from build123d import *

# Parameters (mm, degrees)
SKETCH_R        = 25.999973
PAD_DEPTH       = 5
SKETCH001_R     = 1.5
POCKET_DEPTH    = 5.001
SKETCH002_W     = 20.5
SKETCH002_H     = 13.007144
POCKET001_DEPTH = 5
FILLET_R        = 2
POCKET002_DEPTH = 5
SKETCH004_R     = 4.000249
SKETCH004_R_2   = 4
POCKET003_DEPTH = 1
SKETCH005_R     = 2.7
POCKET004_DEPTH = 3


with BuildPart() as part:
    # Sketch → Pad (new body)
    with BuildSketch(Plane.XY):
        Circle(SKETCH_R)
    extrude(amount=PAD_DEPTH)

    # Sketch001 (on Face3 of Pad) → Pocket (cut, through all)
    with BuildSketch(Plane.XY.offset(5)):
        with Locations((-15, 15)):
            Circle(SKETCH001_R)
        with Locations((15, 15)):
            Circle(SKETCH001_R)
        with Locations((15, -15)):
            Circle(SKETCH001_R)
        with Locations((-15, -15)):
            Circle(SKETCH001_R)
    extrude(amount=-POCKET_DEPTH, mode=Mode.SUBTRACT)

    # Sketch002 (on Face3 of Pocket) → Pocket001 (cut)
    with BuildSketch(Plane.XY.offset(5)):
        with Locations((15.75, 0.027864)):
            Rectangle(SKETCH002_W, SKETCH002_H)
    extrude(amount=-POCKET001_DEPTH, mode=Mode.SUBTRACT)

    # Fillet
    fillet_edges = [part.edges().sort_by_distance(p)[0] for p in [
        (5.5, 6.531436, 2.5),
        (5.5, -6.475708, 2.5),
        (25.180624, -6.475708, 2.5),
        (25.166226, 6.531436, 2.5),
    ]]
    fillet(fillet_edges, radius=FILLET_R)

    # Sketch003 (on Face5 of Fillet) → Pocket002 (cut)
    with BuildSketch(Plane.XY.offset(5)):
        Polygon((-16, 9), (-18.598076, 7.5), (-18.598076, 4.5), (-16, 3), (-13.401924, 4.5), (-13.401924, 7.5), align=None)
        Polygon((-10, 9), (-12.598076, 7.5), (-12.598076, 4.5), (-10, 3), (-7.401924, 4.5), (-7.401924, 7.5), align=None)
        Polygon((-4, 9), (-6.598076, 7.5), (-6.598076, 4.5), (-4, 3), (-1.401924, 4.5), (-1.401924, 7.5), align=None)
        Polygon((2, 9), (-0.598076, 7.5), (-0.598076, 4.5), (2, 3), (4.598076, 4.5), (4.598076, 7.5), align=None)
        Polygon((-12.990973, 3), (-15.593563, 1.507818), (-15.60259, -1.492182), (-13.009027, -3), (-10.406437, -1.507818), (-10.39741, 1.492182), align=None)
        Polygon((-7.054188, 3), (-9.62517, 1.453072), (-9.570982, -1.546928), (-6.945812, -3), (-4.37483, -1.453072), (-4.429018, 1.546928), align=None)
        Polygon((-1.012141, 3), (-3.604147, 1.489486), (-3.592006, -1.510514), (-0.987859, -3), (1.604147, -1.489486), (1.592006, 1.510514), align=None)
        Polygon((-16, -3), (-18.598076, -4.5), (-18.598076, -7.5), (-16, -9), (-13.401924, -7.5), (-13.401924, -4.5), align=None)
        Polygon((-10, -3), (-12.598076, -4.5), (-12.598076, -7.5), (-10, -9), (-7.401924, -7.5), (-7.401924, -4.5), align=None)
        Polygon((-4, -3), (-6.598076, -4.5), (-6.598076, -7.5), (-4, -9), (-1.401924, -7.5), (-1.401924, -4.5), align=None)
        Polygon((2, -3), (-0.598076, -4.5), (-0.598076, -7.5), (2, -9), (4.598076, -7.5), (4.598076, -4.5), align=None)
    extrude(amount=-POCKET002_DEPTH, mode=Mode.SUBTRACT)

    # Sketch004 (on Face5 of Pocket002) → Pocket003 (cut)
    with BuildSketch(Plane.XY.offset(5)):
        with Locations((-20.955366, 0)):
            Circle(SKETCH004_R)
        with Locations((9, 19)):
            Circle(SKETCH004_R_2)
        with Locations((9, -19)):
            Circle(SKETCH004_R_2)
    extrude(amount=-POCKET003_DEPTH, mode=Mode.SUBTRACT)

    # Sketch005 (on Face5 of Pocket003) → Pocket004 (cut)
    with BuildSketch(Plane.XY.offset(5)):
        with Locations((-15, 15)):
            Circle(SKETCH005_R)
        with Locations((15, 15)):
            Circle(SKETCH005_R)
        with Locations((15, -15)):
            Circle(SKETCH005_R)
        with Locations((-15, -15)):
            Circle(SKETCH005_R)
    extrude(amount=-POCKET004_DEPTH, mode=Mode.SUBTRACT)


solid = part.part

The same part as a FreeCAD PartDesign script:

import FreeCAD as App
import Part
import Sketcher
from FreeCAD import Vector
Q = App.Units.Quantity


def edges_at(feature, points):
    """Names of the edges that pass closest to the given points."""
    edges = feature.Shape.Edges
    near = lambda p: min(range(len(edges)), key=lambda i: edges[i].distToShape(Part.Vertex(*p))[0])
    return sorted({f"Edge{near(p) + 1}" for p in points})


def add_polygon(sketch, points):
    """Adds a closed chain of lines whose ends are joined by coincident constraints."""
    first, n = sketch.GeometryCount, len(points)
    for a, b in zip(points, points[1:] + points[:1]):
        sketch.addGeometry(Part.LineSegment(App.Vector(*a, 0), App.Vector(*b, 0)), False)
    for i in range(n):
        sketch.addConstraint(Sketcher.Constraint("Coincident", first + i, 2, first + (i + 1) % n, 1))

doc = App.newDocument("Part")
body = doc.addObject("PartDesign::Body", "Body")

sketch1 = doc.addObject("Sketcher::SketchObject", "Sketch")
body.addObject(sketch1)
sketch1.AttachmentSupport = (doc.XY_Plane, [""])
sketch1.MapMode = "FlatFace"
sketch1.addGeometry(Part.Circle(Vector(0, 0, 0), Vector(0, 0, 1), 25.999973), False)
sketch1.addConstraint([
    Sketcher.Constraint("Coincident", 0, 3, -1, 1),
    Sketcher.Constraint("Diameter", 0, 51.999946),
])
pad1 = doc.addObject("PartDesign::Pad", "Pad")
body.addObject(pad1)
pad1.Profile = sketch1
pad1.Length = 5

sketch2 = doc.addObject("Sketcher::SketchObject", "Sketch001")
body.addObject(sketch2)
sketch2.AttachmentSupport = (doc.XY_Plane, [""])
sketch2.MapMode = "FlatFace"
sketch2.AttachmentOffset = App.Placement(Vector(0, 0, 5), App.Rotation())
sketch2.addGeometry([
    Part.Circle(Vector(-15, 15, 0), Vector(0, 0, 1), 1.5),
    Part.Circle(Vector(15, 15, 0), Vector(0, 0, 1), 1.5),
    Part.Circle(Vector(15, -15, 0), Vector(0, 0, 1), 1.5),
    Part.Circle(Vector(-15, -15, 0), Vector(0, 0, 1), 1.5),
], False)
sketch2.addConstraint([
    Sketcher.Constraint("Equal", 0, 1),
    Sketcher.Constraint("Equal", 1, 2),
    Sketcher.Constraint("Equal", 2, 3),
    Sketcher.Constraint("Symmetric", 0, 3, 2, 3, -1, 1),
    Sketcher.Constraint("Symmetric", 1, 3, 3, 3, -1, 1),
    Sketcher.Constraint("Symmetric", 0, 3, 1, 3, -2),
    Sketcher.Constraint("Diameter", 0, 3.0),
    Sketcher.Constraint("DistanceX", 0, 3, -1, 1, 15.0),
    Sketcher.Constraint("DistanceY", -1, 1, 0, 3, 15.0),
])
pocket1 = doc.addObject("PartDesign::Pocket", "Pocket")
body.addObject(pocket1)
pocket1.Profile = sketch2
pocket1.Type = "ThroughAll"

sketch3 = doc.addObject("Sketcher::SketchObject", "Sketch002")
body.addObject(sketch3)
sketch3.AttachmentSupport = (doc.XY_Plane, [""])
sketch3.MapMode = "FlatFace"
sketch3.AttachmentOffset = App.Placement(Vector(0, 0, 5), App.Rotation())
add_polygon(sketch3, [(5.5, 6.531436), (5.5, -6.475708), (26, -6.475708), (26, 6.531436)])
sketch3.addConstraint([
    Sketcher.Constraint("Vertical", 0),
    Sketcher.Constraint("Horizontal", 1),
    Sketcher.Constraint("Vertical", 2),
    Sketcher.Constraint("Horizontal", 3),
    Sketcher.Constraint("DistanceX", 1, 1, 1, 2, 20.5),
    Sketcher.Constraint("DistanceX", -1, 1, 1, 2, 26.0),
    Sketcher.Constraint("DistanceY", 0, 2, 0, 1, 13.007144),
    Sketcher.Constraint("DistanceY", 0, 2, -1, 1, 6.475708),
])
pocket2 = doc.addObject("PartDesign::Pocket", "Pocket001")
body.addObject(pocket2)
pocket2.Profile = sketch3
pocket2.Length = 5
doc.recompute()

fillet = doc.addObject("PartDesign::Fillet", "Fillet")
body.addObject(fillet)
fillet.Base = (pocket2, edges_at(pocket2, [
    (5.5, 6.531, 2.5),
    (5.5, -6.476, 2.5),
    (25.181, -6.476, 2.5),
    (25.166, 6.531, 2.5),
]))
fillet.Radius = 2

sketch4 = doc.addObject("Sketcher::SketchObject", "Sketch003")
body.addObject(sketch4)
sketch4.AttachmentSupport = (doc.XY_Plane, [""])
sketch4.MapMode = "FlatFace"
sketch4.AttachmentOffset = App.Placement(Vector(0, 0, 5), App.Rotation())
add_polygon(sketch4, [(-16, 9), (-18.598076, 7.5), (-18.598076, 4.5), (-16, 3), (-13.401924, 4.5), (-13.401924, 7.5)])
add_polygon(sketch4, [(-10, 9), (-12.598076, 7.5), (-12.598076, 4.5), (-10, 3), (-7.401924, 4.5), (-7.401924, 7.5)])
add_polygon(sketch4, [(-4, 9), (-6.598076, 7.5), (-6.598076, 4.5), (-4, 3), (-1.401924, 4.5), (-1.401924, 7.5)])
add_polygon(sketch4, [(2, 9), (-0.598076, 7.5), (-0.598076, 4.5), (2, 3), (4.598076, 4.5), (4.598076, 7.5)])
add_polygon(sketch4, [(-12.990973, 3), (-15.593563, 1.507818), (-15.60259, -1.492182), (-13.009027, -3), (-10.406437, -1.507818), (-10.39741, 1.492182)])
add_polygon(sketch4, [(-7.054188, 3), (-9.62517, 1.453072), (-9.570982, -1.546928), (-6.945812, -3), (-4.37483, -1.453072), (-4.429018, 1.546928)])
add_polygon(sketch4, [(-1.012141, 3), (-3.604147, 1.489486), (-3.592006, -1.510514), (-0.987859, -3), (1.604147, -1.489486), (1.592006, 1.510514)])
add_polygon(sketch4, [(-16, -3), (-18.598076, -4.5), (-18.598076, -7.5), (-16, -9), (-13.401924, -7.5), (-13.401924, -4.5)])
add_polygon(sketch4, [(-10, -3), (-12.598076, -4.5), (-12.598076, -7.5), (-10, -9), (-7.401924, -7.5), (-7.401924, -4.5)])
add_polygon(sketch4, [(-4, -3), (-6.598076, -4.5), (-6.598076, -7.5), (-4, -9), (-1.401924, -7.5), (-1.401924, -4.5)])
add_polygon(sketch4, [(2, -3), (-0.598076, -4.5), (-0.598076, -7.5), (2, -9), (4.598076, -7.5), (4.598076, -4.5)])
sketch4.addConstraint([
    Sketcher.Constraint("Vertical", 1),
    Sketcher.Constraint("Vertical", 4),
    Sketcher.Constraint("Vertical", 7),
    Sketcher.Constraint("Vertical", 10),
    Sketcher.Constraint("Vertical", 13),
    Sketcher.Constraint("Vertical", 16),
    Sketcher.Constraint("Vertical", 19),
    Sketcher.Constraint("Vertical", 22),
    Sketcher.Constraint("Vertical", 43),
    Sketcher.Constraint("Vertical", 46),
    Sketcher.Constraint("Vertical", 49),
    Sketcher.Constraint("Vertical", 52),
    Sketcher.Constraint("Vertical", 55),
    Sketcher.Constraint("Vertical", 58),
    Sketcher.Constraint("Vertical", 61),
    Sketcher.Constraint("Vertical", 64),
    Sketcher.Constraint("Symmetric", 1, 2, 42, 2, -1),
    Sketcher.Constraint("Symmetric", 5, 2, 44, 2, -1),
    Sketcher.Constraint("Symmetric", 4, 2, 45, 2, -1),
    Sketcher.Constraint("Symmetric", 2, 2, 47, 2, -1),
    Sketcher.Constraint("Symmetric", 7, 2, 48, 2, -1),
    Sketcher.Constraint("Symmetric", 11, 2, 50, 2, -1),
    Sketcher.Constraint("Symmetric", 10, 2, 51, 2, -1),
    Sketcher.Constraint("Symmetric", 8, 2, 53, 2, -1),
    Sketcher.Constraint("Symmetric", 13, 2, 54, 2, -1),
    Sketcher.Constraint("Symmetric", 17, 2, 56, 2, -1),
    Sketcher.Constraint("Symmetric", 16, 2, 57, 2, -1),
    Sketcher.Constraint("Symmetric", 14, 2, 59, 2, -1),
    Sketcher.Constraint("Symmetric", 19, 2, 60, 2, -1),
    Sketcher.Constraint("Symmetric", 23, 2, 62, 2, -1),
    Sketcher.Constraint("Symmetric", 22, 2, 63, 2, -1),
    Sketcher.Constraint("Symmetric", 20, 2, 65, 2, -1),
    Sketcher.Constraint("Parallel", 0, 3),
    Sketcher.Constraint("Parallel", 2, 5),
    Sketcher.Constraint("Parallel", 3, 6),
    Sketcher.Constraint("Parallel", 5, 8),
    Sketcher.Constraint("Parallel", 6, 9),
    Sketcher.Constraint("Parallel", 8, 11),
    Sketcher.Constraint("Parallel", 9, 12),
    Sketcher.Constraint("Parallel", 11, 14),
    Sketcher.Constraint("Parallel", 12, 15),
    Sketcher.Constraint("Parallel", 14, 17),
    Sketcher.Constraint("Parallel", 15, 18),
    Sketcher.Constraint("Parallel", 17, 20),
    Sketcher.Constraint("Parallel", 18, 21),
    Sketcher.Constraint("Parallel", 20, 23),
    Sketcher.Constraint("Parallel", 24, 27),
    Sketcher.Constraint("Parallel", 25, 28),
    Sketcher.Constraint("Parallel", 26, 29),
    Sketcher.Constraint("Parallel", 30, 33),
    Sketcher.Constraint("Parallel", 31, 34),
    Sketcher.Constraint("Parallel", 32, 35),
    Sketcher.Constraint("Parallel", 36, 39),
    Sketcher.Constraint("Parallel", 37, 40),
    Sketcher.Constraint("Parallel", 38, 41),
    Sketcher.Constraint("Parallel", 21, 42),
    Sketcher.Constraint("Parallel", 23, 44),
    Sketcher.Constraint("Parallel", 44, 47),
    Sketcher.Constraint("Parallel", 47, 50),
    Sketcher.Constraint("Parallel", 50, 53),
    Sketcher.Constraint("Parallel", 53, 56),
    Sketcher.Constraint("Parallel", 56, 59),
    Sketcher.Constraint("Parallel", 59, 62),
    Sketcher.Constraint("Parallel", 62, 65),
    Sketcher.Constraint("Horizontal", 1, 2, 3, 2),
    Sketcher.Constraint("Horizontal", 0, 2, 4, 2),
    Sketcher.Constraint("Horizontal", 4, 2, 6, 2),
    Sketcher.Constraint("Horizontal", 3, 2, 7, 2),
    Sketcher.Constraint("Horizontal", 2, 2, 8, 2),
    Sketcher.Constraint("Horizontal", 7, 2, 9, 2),
    Sketcher.Constraint("Horizontal", 6, 2, 10, 2),
    Sketcher.Constraint("Horizontal", 10, 2, 12, 2),
    Sketcher.Constraint("Horizontal", 9, 2, 13, 2),
    Sketcher.Constraint("Horizontal", 8, 2, 14, 2),
    Sketcher.Constraint("Horizontal", 13, 2, 15, 2),
    Sketcher.Constraint("Horizontal", 12, 2, 16, 2),
    Sketcher.Constraint("Horizontal", 16, 2, 18, 2),
    Sketcher.Constraint("Horizontal", 15, 2, 19, 2),
    Sketcher.Constraint("Horizontal", 14, 2, 20, 2),
    Sketcher.Constraint("Horizontal", 19, 2, 21, 2),
    Sketcher.Constraint("Horizontal", 18, 2, 22, 2),
    Sketcher.Constraint("Horizontal", 20, 2, 29, 2),
    Sketcher.Constraint("Horizontal", 26, 2, 32, 2),
    Sketcher.Constraint("Horizontal", 29, 2, 35, 2),
    Sketcher.Constraint("Horizontal", 32, 2, 38, 2),
    Sketcher.Constraint("Horizontal", 35, 2, 41, 2),
    Sketcher.Constraint("Horizontal", 38, 2, 47, 2),
    Sketcher.Constraint("Equal", 24, 25),
    Sketcher.Constraint("Equal", 25, 26),
    Sketcher.Constraint("Equal", 26, 27),
    Sketcher.Constraint("Equal", 30, 31),
    Sketcher.Constraint("Equal", 31, 32),
    Sketcher.Constraint("Equal", 32, 33),
    Sketcher.Constraint("Equal", 36, 37),
    Sketcher.Constraint("Equal", 37, 38),
    Sketcher.Constraint("Equal", 38, 39),
    Sketcher.Constraint("DistanceY", 1, 2, 1, 1, 3.0),
    Sketcher.Constraint("Angle", 0, Q("-149.999998 deg")),
    Sketcher.Constraint("Distance", 0, 3.0),
    Sketcher.Constraint("DistanceX", 2, 2, -1, 1, 16.0),
    Sketcher.Constraint("DistanceY", -1, 1, 2, 2, 3.0),
    Sketcher.Constraint("DistanceX", 8, 2, -1, 1, 10.0),
    Sketcher.Constraint("DistanceX", 14, 2, -1, 1, 4.0),
    Sketcher.Constraint("DistanceX", -1, 1, 20, 2, 2.0),
    Sketcher.Constraint("Distance", 30, 3.000489),
    Sketcher.Constraint("DistanceY", -1, 1, 24, 2, 1.507818),
    Sketcher.Constraint("DistanceX", 25, 2, -1, 1, 15.60259),
    Sketcher.Constraint("DistanceY", 25, 2, -1, 1, 1.492182),
    Sketcher.Constraint("DistanceX", 28, 2, -1, 1, 10.39741),
    Sketcher.Constraint("DistanceX", 30, 2, -1, 1, 9.62517),
    Sketcher.Constraint("DistanceY", -1, 1, 30, 2, 1.453072),
    Sketcher.Constraint("DistanceY", 31, 2, -1, 1, 1.546928),
    Sketcher.Constraint("DistanceX", 38, 2, -1, 1, 0.987859),
    Sketcher.Constraint("DistanceX", 41, 2, -1, 1, 1.012141),
    Sketcher.Constraint("Distance", 36, 3.000025),
    Sketcher.Constraint("DistanceX", 36, 2, -1, 1, 3.604147),
])
pocket3 = doc.addObject("PartDesign::Pocket", "Pocket002")
body.addObject(pocket3)
pocket3.Profile = sketch4
pocket3.Length = 5

sketch5 = doc.addObject("Sketcher::SketchObject", "Sketch004")
body.addObject(sketch5)
sketch5.AttachmentSupport = (doc.XY_Plane, [""])
sketch5.MapMode = "FlatFace"
sketch5.AttachmentOffset = App.Placement(Vector(0, 0, 5), App.Rotation())
sketch5.addGeometry([
    Part.Circle(Vector(-20.955366, 0, 0), Vector(0, 0, 1), 4.000249),
    Part.Circle(Vector(9, 19, 0), Vector(0, 0, 1), 4),
    Part.Circle(Vector(9, -19, 0), Vector(0, 0, 1), 4),
], False)
sketch5.addConstraint([
    Sketcher.Constraint("Equal", 1, 2),
    Sketcher.Constraint("Symmetric", 1, 3, 2, 3, -1),
    Sketcher.Constraint("PointOnObject", 0, 3, -1),
    Sketcher.Constraint("Diameter", 1, 8.0),
    Sketcher.Constraint("DistanceX", -1, 1, 1, 3, 9.0),
    Sketcher.Constraint("DistanceY", -1, 1, 1, 3, 19.0),
    Sketcher.Constraint("Diameter", 0, 8.000498),
    Sketcher.Constraint("DistanceX", 0, 3, -1, 1, 20.955366),
])
pocket4 = doc.addObject("PartDesign::Pocket", "Pocket003")
body.addObject(pocket4)
pocket4.Profile = sketch5
pocket4.Length = 1

sketch6 = doc.addObject("Sketcher::SketchObject", "Sketch005")
body.addObject(sketch6)
sketch6.AttachmentSupport = (doc.XY_Plane, [""])
sketch6.MapMode = "FlatFace"
sketch6.AttachmentOffset = App.Placement(Vector(0, 0, 5), App.Rotation())
sketch6.addGeometry([
    Part.Circle(Vector(-15, 15, 0), Vector(0, 0, 1), 2.7),
    Part.Circle(Vector(15, 15, 0), Vector(0, 0, 1), 2.7),
    Part.Circle(Vector(15, -15, 0), Vector(0, 0, 1), 2.7),
    Part.Circle(Vector(-15, -15, 0), Vector(0, 0, 1), 2.7),
], False)
sketch6.addConstraint([
    Sketcher.Constraint("Equal", 0, 1),
    Sketcher.Constraint("Equal", 1, 2),
    Sketcher.Constraint("Equal", 2, 3),
    Sketcher.Constraint("Symmetric", 0, 3, 2, 3, -1, 1),
    Sketcher.Constraint("Symmetric", 1, 3, 3, 3, -1, 1),
    Sketcher.Constraint("Symmetric", 0, 3, 1, 3, -2),
    Sketcher.Constraint("Diameter", 0, 5.4),
    Sketcher.Constraint("DistanceX", 0, 3, -1, 1, 15.0),
    Sketcher.Constraint("DistanceY", -1, 1, 0, 3, 15.0),
])
pocket5 = doc.addObject("PartDesign::Pocket", "Pocket004")
body.addObject(pocket5)
pocket5.Profile = sketch6
pocket5.Length = 3

doc.recompute()
